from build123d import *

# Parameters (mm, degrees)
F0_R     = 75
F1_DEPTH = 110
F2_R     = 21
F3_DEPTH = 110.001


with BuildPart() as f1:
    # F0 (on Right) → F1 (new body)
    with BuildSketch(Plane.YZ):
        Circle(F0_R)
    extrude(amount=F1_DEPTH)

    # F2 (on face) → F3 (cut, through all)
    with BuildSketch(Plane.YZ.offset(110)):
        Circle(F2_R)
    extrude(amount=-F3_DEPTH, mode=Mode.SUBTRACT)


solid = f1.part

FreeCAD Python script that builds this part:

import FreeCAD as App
import Part
import Sketcher
from FreeCAD import Vector

doc = App.newDocument("Part")
body = doc.addObject("PartDesign::Body", "Body")

sketch1 = body.newObject("Sketcher::SketchObject", "Sketch")
sketch1.AttachmentSupport = (doc.getObject("YZ_Plane"), [""])
sketch1.MapMode = "FlatFace"
sketch1.addGeometry(Part.Circle(Vector(0, 0, 0), Vector(0, 0, 1), 75), False)
sketch1.addConstraint(Sketcher.Constraint("Coincident", 0, 3, -1, 1))
sketch1.addConstraint(Sketcher.Constraint("Diameter", 0, 150.0))
pad1 = body.newObject("PartDesign::Pad", "Pad")
pad1.Profile = sketch1
pad1.Length = 110

sketch2 = body.newObject("Sketcher::SketchObject", "Sketch001")
sketch2.AttachmentSupport = (doc.getObject("YZ_Plane"), [""])
sketch2.MapMode = "FlatFace"
sketch2.AttachmentOffset = App.Placement(Vector(0, 0, 110), App.Rotation())
sketch2.addGeometry(Part.Circle(Vector(0, 0, 0), Vector(0, 0, 1), 21), False)
sketch2.addConstraint(Sketcher.Constraint("Coincident", 0, 3, -1, 1))
sketch2.addConstraint(Sketcher.Constraint("Diameter", 0, 42.0))
pocket1 = body.newObject("PartDesign::Pocket", "Pocket")
pocket1.Profile = sketch2
pocket1.Type = "ThroughAll"

doc.recompute()
